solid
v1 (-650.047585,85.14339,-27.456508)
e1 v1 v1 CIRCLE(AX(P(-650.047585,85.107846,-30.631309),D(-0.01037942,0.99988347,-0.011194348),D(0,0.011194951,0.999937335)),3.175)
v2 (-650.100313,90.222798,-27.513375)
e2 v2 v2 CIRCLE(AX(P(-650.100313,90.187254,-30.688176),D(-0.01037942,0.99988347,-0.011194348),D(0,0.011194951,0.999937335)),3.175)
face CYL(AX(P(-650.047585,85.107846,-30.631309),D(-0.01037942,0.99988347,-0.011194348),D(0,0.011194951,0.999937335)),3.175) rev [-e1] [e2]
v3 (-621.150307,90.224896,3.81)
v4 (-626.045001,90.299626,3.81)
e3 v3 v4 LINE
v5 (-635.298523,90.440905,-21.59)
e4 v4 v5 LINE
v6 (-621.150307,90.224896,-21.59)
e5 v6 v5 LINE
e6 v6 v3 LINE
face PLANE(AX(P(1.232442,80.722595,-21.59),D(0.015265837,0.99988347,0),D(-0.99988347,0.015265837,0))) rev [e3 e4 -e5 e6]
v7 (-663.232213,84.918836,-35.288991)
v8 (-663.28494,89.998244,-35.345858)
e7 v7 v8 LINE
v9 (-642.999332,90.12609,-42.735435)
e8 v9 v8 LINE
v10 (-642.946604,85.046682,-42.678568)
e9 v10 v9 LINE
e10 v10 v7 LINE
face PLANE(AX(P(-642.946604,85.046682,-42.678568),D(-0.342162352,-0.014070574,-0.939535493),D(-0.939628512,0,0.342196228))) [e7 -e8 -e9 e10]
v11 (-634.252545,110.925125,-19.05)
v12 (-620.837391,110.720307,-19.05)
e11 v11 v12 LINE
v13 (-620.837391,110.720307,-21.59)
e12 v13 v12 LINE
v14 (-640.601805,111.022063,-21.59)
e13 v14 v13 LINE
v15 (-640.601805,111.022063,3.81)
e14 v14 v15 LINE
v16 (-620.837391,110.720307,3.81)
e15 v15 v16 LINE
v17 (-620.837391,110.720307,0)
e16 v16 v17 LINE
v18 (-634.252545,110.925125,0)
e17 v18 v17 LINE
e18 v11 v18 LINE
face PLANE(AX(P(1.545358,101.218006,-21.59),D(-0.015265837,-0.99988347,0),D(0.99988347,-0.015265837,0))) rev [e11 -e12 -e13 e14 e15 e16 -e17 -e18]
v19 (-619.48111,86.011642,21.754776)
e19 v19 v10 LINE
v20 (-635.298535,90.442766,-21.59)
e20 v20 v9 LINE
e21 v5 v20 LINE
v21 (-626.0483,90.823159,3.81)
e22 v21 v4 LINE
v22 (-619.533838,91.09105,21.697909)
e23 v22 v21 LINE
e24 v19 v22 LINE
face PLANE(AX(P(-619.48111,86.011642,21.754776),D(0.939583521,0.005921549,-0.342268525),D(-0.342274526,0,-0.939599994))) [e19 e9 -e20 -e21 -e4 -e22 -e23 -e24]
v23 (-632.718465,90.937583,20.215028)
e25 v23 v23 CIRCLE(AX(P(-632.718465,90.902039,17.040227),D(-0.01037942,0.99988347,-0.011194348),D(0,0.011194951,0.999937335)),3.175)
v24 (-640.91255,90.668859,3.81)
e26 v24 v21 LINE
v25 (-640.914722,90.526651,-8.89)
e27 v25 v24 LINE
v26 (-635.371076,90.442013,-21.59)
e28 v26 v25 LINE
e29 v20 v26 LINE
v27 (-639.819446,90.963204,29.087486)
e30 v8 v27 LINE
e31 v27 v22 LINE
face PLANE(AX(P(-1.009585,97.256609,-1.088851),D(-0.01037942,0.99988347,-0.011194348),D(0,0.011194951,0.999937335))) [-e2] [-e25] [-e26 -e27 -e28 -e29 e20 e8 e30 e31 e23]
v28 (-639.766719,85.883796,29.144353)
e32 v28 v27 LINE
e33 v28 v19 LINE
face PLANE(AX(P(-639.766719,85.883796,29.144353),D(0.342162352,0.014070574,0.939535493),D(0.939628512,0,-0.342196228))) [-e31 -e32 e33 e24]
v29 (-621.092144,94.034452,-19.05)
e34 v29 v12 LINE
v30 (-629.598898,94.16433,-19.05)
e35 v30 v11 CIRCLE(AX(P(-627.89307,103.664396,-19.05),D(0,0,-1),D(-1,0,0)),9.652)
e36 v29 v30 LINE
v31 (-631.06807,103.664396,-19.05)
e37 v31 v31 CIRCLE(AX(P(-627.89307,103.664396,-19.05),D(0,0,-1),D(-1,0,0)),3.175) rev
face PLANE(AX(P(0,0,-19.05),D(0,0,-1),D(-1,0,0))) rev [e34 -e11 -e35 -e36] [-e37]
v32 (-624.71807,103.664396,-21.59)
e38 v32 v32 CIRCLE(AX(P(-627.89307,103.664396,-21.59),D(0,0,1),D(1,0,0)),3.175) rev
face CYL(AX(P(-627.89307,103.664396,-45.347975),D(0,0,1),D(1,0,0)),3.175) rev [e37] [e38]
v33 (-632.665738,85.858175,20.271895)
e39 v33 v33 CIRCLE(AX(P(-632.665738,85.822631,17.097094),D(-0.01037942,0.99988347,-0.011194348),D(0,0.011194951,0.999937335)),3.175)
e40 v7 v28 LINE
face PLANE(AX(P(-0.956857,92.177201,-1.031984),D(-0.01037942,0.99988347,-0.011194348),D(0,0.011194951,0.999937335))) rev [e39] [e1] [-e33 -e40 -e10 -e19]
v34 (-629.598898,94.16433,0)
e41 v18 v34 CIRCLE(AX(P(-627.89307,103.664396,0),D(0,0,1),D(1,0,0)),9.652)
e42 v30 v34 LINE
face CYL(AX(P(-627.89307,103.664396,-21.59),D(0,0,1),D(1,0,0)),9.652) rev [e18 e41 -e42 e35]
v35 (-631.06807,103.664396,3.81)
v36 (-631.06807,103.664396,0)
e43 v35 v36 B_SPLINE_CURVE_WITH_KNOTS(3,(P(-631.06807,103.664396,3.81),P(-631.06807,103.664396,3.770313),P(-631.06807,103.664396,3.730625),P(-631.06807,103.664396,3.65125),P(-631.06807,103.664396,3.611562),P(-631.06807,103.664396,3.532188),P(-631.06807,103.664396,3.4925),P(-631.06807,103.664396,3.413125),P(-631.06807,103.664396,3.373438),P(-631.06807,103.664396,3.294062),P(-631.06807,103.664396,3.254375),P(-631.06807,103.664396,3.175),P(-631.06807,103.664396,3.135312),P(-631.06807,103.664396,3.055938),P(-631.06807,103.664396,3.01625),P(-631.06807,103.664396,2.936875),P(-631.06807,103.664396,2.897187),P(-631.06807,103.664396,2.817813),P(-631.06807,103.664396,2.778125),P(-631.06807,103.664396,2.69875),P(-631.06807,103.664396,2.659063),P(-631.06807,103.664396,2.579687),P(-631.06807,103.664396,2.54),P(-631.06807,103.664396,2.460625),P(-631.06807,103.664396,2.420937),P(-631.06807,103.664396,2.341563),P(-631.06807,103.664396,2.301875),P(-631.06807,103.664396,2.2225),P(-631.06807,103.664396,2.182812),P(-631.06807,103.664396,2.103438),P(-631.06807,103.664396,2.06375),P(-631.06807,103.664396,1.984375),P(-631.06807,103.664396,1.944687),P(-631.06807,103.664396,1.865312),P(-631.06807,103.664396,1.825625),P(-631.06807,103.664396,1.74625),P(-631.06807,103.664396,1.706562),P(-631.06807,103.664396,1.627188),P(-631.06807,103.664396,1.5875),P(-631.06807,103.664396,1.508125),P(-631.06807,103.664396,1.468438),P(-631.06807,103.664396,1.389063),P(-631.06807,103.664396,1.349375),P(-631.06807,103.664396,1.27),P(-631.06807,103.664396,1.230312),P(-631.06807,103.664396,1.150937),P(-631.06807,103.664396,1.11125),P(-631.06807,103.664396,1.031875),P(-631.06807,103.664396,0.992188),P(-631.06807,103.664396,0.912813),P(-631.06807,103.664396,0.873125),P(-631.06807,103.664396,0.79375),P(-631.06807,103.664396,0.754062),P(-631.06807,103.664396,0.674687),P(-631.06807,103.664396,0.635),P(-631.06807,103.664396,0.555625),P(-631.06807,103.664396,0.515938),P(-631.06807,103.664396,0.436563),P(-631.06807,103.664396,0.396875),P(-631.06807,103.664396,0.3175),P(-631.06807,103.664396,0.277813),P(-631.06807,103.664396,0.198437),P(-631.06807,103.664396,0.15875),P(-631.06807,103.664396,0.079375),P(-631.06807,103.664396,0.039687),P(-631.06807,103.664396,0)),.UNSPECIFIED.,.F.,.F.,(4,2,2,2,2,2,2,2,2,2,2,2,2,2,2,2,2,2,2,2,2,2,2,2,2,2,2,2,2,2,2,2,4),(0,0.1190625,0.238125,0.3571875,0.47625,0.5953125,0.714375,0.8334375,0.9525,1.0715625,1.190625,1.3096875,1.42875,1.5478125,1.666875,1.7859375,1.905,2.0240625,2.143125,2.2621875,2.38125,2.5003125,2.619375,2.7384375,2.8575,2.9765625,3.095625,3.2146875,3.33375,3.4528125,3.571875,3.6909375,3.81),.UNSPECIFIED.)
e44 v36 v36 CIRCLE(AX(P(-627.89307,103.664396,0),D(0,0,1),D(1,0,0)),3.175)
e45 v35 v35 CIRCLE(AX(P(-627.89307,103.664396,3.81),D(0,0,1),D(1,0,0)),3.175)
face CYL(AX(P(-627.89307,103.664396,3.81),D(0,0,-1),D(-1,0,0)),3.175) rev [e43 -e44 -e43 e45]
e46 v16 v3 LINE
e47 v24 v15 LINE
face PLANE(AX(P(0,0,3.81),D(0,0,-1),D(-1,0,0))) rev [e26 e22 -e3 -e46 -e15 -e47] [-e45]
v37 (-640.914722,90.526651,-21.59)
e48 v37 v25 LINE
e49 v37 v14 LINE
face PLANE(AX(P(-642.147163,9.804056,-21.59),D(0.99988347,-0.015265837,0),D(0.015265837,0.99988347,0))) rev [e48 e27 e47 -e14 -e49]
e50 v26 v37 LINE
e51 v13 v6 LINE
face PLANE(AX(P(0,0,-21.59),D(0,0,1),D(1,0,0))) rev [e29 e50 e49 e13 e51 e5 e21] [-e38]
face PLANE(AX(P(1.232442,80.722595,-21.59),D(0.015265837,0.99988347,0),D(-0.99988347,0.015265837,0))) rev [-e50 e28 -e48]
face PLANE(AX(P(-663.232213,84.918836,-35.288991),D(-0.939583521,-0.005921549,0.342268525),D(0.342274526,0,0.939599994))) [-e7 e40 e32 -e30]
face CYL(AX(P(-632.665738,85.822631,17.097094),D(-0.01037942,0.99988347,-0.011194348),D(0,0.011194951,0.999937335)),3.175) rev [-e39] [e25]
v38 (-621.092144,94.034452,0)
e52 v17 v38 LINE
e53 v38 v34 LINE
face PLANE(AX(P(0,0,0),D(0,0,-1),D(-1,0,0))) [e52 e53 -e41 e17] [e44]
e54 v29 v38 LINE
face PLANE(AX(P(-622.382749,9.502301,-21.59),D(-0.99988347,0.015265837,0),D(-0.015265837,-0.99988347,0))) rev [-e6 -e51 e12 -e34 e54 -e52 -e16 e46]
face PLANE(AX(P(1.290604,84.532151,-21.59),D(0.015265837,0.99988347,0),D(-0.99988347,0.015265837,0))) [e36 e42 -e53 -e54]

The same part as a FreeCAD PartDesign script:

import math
import FreeCAD as App
import Part
import Sketcher
from FreeCAD import Vector
Q = App.Units.Quantity


def add_polygon(sketch, points):
    """Adds a closed chain of lines whose ends are joined by coincident constraints."""
    first, n = sketch.GeometryCount, len(points)
    for a, b in zip(points, points[1:] + points[:1]):
        sketch.addGeometry(Part.LineSegment(App.Vector(*a, 0), App.Vector(*b, 0)), False)
    for i in range(n):
        sketch.addConstraint(Sketcher.Constraint("Coincident", first + i, 2, first + (i + 1) % n, 1))

doc = App.newDocument("Part")
params = doc.addObject("Spreadsheet::Sheet", "Params")
for row, (alias, value) in enumerate([
    ("sketch1_radius", "0.38 in"),
    ("sketch1_length", "0.15 in"),
    ("sketch1_length2", "0.25 in"),
    ("sketch1_length3", "0.807 in"),
    ("pad1_length", "0.85 in"),
    ("sketch2_diameter", "0.25 in"),
    ("sketch2_radius", "0.38 in"),
    ("sketch2_length", "0.564 in"),
    ("sketch2_length2", "0.093 in"),
    ("pad2_length", "0.1 in"),
    ("sketch3_diameter", "0.25 in"),
    ("sketch3_length", "0.807 in"),
    ("pad3_length", "0.15 in"),
    ("sketch4_diameter", "0.25 in"),
    ("sketch4_length", "2.7 in"),
    ("sketch4_length2", "0.85 in"),
    ("pad4_length", "0.2 in"),
], start=1):
    params.set(f"A{row}", alias)
    params.set(f"B{row}", "=" + value)
    params.setAlias(f"B{row}", alias)

body = doc.addObject("PartDesign::Body", "Body")

sketch1 = body.newObject("Sketcher::SketchObject", "Sketch")
sketch1.AttachmentSupport = (doc.getObject("XY_Plane"), [""])
sketch1.MapMode = "FlatFace"
sketch1.addGeometry([
    Part.LineSegment(Vector(-621.2, 90.2, 0), Vector(-621.1, 94, 0)),
    Part.LineSegment(Vector(-621.1, 94, 0), Vector(-629.6, 94.2, 0)),
    Part.ArcOfCircle(Part.Circle(Vector(-627.9, 103.7, 0), Vector(0, 0, 1), 9.7), math.radians(-133), math.radians(-100)),
    Part.ArcOfCircle(Part.Circle(Vector(-627.9, 103.7, 0), Vector(0, 0, 1), 9.7), math.radians(131), math.radians(227)),
    Part.LineSegment(Vector(-634.3, 110.9, 0), Vector(-640.6, 111, 0)),
    Part.LineSegment(Vector(-640.6, 111, 0), Vector(-640.9, 90.5, 0)),
    Part.LineSegment(Vector(-640.9, 90.5, 0), Vector(-621.2, 90.2, 0)),
], False)
sketch1.addConstraint([
    Sketcher.Constraint("Coincident", 0, 2, 1, 1),
    Sketcher.Constraint("Coincident", 1, 2, 2, 2),
    Sketcher.Constraint("Tangent", 2, 1, 3, 2),
    Sketcher.Constraint("Coincident", 3, 1, 4, 1),
    Sketcher.Constraint("Coincident", 4, 2, 5, 1),
    Sketcher.Constraint("Coincident", 5, 2, 6, 1),
    Sketcher.Constraint("Coincident", 6, 2, 0, 1),
    Sketcher.Constraint("Equal", 2, 3),
    Sketcher.Constraint("Perpendicular", 0, 1),
    Sketcher.Constraint("Parallel", 1, 4),
    Sketcher.Constraint("Perpendicular", 4, 5),
    Sketcher.Constraint("Perpendicular", 5, 6),
    Sketcher.Constraint("Radius", 2, Q("0.38 in")),
    Sketcher.Constraint("Distance", 0, Q("0.15 in")),
    Sketcher.Constraint("Distance", 4, Q("0.25 in")),
    Sketcher.Constraint("Distance", 5, Q("0.807 in")),
    Sketcher.Constraint("DistanceY", 2, 1, 2, 3, Q("7.063202 mm")),
    Sketcher.Constraint("DistanceX", 3, 1, 0, 2, Q("13.160401 mm")),
    Sketcher.Constraint("DistanceY", 5, 2, 0, 2, Q("3.507801 mm")),
    Sketcher.Constraint("DistanceY", 6, 2, 2, 1, Q("6.376298 mm")),
    Sketcher.Constraint("DistanceX", 2, 3, -1, 1, Q("627.89307 mm")),
    Sketcher.Constraint("DistanceY", -1, 1, 0, 2, Q("94.034452 mm")),
])
sketch1.setExpression("Constraints[12]", "Params.sketch1_radius")
sketch1.setExpression("Constraints[13]", "Params.sketch1_length")
sketch1.setExpression("Constraints[14]", "Params.sketch1_length2")
sketch1.setExpression("Constraints[15]", "Params.sketch1_length3")
pad1 = body.newObject("PartDesign::Pad", "Pad")
pad1.Profile = sketch1
pad1.setExpression("Length", "Params.pad1_length")
pad1.Reversed = True

sketch2 = body.newObject("Sketcher::SketchObject", "Sketch001")
sketch2.AttachmentSupport = (doc.getObject("XY_Plane"), [""])
sketch2.MapMode = "FlatFace"
sketch2.AttachmentOffset = App.Placement(Vector(0, 0, -0.75 * 25.4), App.Rotation())
sketch2.addGeometry([
    Part.LineSegment(Vector(-620.8, 110.7, 0), Vector(-621.1, 96.4, 0)),
    Part.LineSegment(Vector(-621.1, 96.4, 0), Vector(-621.1, 94, 0)),
    Part.LineSegment(Vector(-621.1, 94, 0), Vector(-629.6, 94.2, 0)),
    Part.ArcOfCircle(Part.Circle(Vector(-627.9, 103.7, 0), Vector(0, 0, 1), 9.7), math.radians(-133), math.radians(-100)),
    Part.ArcOfCircle(Part.Circle(Vector(-627.9, 103.7, 0), Vector(0, 0, 1), 9.7), math.radians(131), math.radians(227)),
    Part.LineSegment(Vector(-634.3, 110.9, 0), Vector(-620.8, 110.7, 0)),
    Part.Circle(Vector(-627.9, 103.7, 0), Vector(0, 0, 1), 3.2),
], False)
sketch2.addConstraint([
    Sketcher.Constraint("Coincident", 0, 2, 1, 1),
    Sketcher.Constraint("Coincident", 1, 2, 2, 1),
    Sketcher.Constraint("Coincident", 2, 2, 3, 2),
    Sketcher.Constraint("Tangent", 3, 1, 4, 2),
    Sketcher.Constraint("Coincident", 4, 1, 5, 1),
    Sketcher.Constraint("Coincident", 5, 2, 0, 1),
    Sketcher.Constraint("Coincident", 6, 3, 3, 3),
    Sketcher.Constraint("Equal", 3, 4),
    Sketcher.Constraint("Parallel", 0, 1),
    Sketcher.Constraint("Perpendicular", 1, 2),
    Sketcher.Constraint("Parallel", 2, 5),
    Sketcher.Constraint("Diameter", 6, Q("0.25 in")),
    Sketcher.Constraint("Radius", 3, Q("0.38 in")),
    Sketcher.Constraint("Distance", 0, Q("0.564 in")),
    Sketcher.Constraint("Distance", 1, Q("0.093 in")),
    Sketcher.Constraint("DistanceY", 3, 1, 3, 3, Q("7.063202 mm")),
    Sketcher.Constraint("Distance", 5, Q("13.416718 mm")),
    Sketcher.Constraint("DistanceX", 3, 3, -1, 1, Q("627.89307 mm")),
    Sketcher.Constraint("DistanceY", -1, 1, 1, 2, Q("94.034452 mm")),
    Sketcher.Constraint("DistanceY", -1, 1, 2, 2, Q("94.16433 mm")),
    Sketcher.Constraint("DistanceX", 5, 2, -1, 1, Q("620.837391 mm")),
])
sketch2.setExpression("Constraints[11]", "Params.sketch2_diameter")
sketch2.setExpression("Constraints[12]", "Params.sketch2_radius")
sketch2.setExpression("Constraints[13]", "Params.sketch2_length")
sketch2.setExpression("Constraints[14]", "Params.sketch2_length2")
pad2 = body.newObject("PartDesign::Pad", "Pad001")
pad2.Profile = sketch2
pad2.setExpression("Length", "Params.pad2_length")
pad2.Reversed = True

sketch3 = body.newObject("Sketcher::SketchObject", "Sketch002")
sketch3.AttachmentSupport = (doc.getObject("XY_Plane"), [""])
sketch3.MapMode = "FlatFace"
sketch3.AttachmentOffset = App.Placement(Vector(0, 0, 0.15 * 25.4), App.Rotation())
add_polygon(sketch3, [(-620.8, 110.7), (-640.6, 111), (-640.9, 90.5), (-621.2, 90.2)])
sketch3.addGeometry(Part.Circle(Vector(-627.9, 103.7, 0), Vector(0, 0, 1), 3.2), False)
sketch3.addConstraint([
    Sketcher.Constraint("Perpendicular", 0, 1),
    Sketcher.Constraint("Perpendicular", 1, 2),
    Sketcher.Constraint("Perpendicular", 2, 3),
    Sketcher.Constraint("Diameter", 4, Q("0.25 in")),
    Sketcher.Constraint("Distance", 1, Q("0.807 in")),
    Sketcher.Constraint("DistanceY", 2, 2, 4, 3, Q("13.4395 mm")),
    Sketcher.Constraint("DistanceX", 0, 2, 2, 2, Q("19.451499 mm")),
    Sketcher.Constraint("Distance", 0, Q("19.766718 mm")),
    Sketcher.Constraint("DistanceX", 4, 3, -1, 1, Q("627.89307 mm")),
    Sketcher.Constraint("DistanceX", 1, 2, -1, 1, Q("640.914722 mm")),
    Sketcher.Constraint("DistanceY", -1, 1, 1, 2, Q("90.526651 mm")),
])
sketch3.setExpression("Constraints[7]", "Params.sketch3_diameter")
sketch3.setExpression("Constraints[8]", "Params.sketch3_length")
pad3 = body.newObject("PartDesign::Pad", "Pad002")
pad3.Profile = sketch3
pad3.setExpression("Length", "Params.pad3_length")
pad3.Reversed = True

sketch4 = body.newObject("Sketcher::SketchObject", "Sketch003")
sketch4.Placement = App.Placement(Vector(-1.009585, 97.256609, -1.088851), App.Rotation(Vector(0.999946132, 0.01037877, -0.000116197), Vector(0, -0.011194951, -0.999937334), Vector(-0.01037942, 0.99988347, -0.011194348), "ZXY"))
add_polygon(sketch4, [(-662.3, 34.3), (-638.8, -30.1), (-618.6, -22.7), (-642, 41.7)])
sketch4.addGeometry(Part.Circle(Vector(-631.7, -18.1, 0), Vector(0, 0, 1), 3.2), False)
sketch4.addGeometry(Part.Circle(Vector(-649.1, 29.7, 0), Vector(0, 0, 1), 3.2), False)
sketch4.addConstraint([
    Sketcher.Constraint("Equal", 4, 5),
    Sketcher.Constraint("Perpendicular", 0, 1),
    Sketcher.Constraint("Perpendicular", 1, 2),
    Sketcher.Constraint("Perpendicular", 2, 3),
    Sketcher.Constraint("Diameter", 4, Q("0.25 in")),
    Sketcher.Constraint("Distance", 0, Q("2.7 in")),
    Sketcher.Constraint("Distance", 1, Q("0.85 in")),
    Sketcher.Constraint("DistanceY", -1, 1, 2, 2, Q("41.7238 mm")),
    Sketcher.Constraint("DistanceX", 0, 2, 1, 2, Q("20.286701 mm")),
    Sketcher.Constraint("DistanceX", 4, 3, -1, 1, Q("631.74291 mm")),
    Sketcher.Constraint("DistanceY", -1, 1, 5, 3, Q("29.676611 mm")),
    Sketcher.Constraint("DistanceX", 2, 2, -1, 1, Q("642.024331 mm")),
    Sketcher.Constraint("DistanceY", 0, 2, 4, 3, Q("12.047189 mm")),
    Sketcher.Constraint("DistanceX", 5, 3, 0, 2, Q("10.281421 mm")),
])
sketch4.setExpression("Constraints[8]", "Params.sketch4_diameter")
sketch4.setExpression("Constraints[9]", "Params.sketch4_length")
sketch4.setExpression("Constraints[10]", "Params.sketch4_length2")
pad4 = body.newObject("PartDesign::Pad", "Pad003")
pad4.Profile = sketch4
pad4.setExpression("Length", "Params.pad4_length")
pad4.Reversed = True

doc.recompute()
